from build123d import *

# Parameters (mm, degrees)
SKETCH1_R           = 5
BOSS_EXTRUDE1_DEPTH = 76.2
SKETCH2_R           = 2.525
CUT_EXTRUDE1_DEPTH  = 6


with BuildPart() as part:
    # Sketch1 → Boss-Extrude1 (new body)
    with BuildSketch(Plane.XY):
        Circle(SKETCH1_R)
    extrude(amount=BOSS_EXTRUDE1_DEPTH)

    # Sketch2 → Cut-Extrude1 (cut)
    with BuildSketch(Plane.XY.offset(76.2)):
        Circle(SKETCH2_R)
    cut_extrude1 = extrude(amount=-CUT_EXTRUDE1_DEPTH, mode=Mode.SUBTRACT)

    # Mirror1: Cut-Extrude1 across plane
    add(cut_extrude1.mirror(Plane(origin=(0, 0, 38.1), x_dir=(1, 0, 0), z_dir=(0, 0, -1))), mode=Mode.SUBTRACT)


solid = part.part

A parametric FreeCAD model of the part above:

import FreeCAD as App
import Part
import Sketcher

doc = App.newDocument("Part")
body = doc.addObject("PartDesign::Body", "Body")

sketch1 = body.newObject("Sketcher::SketchObject", "Sketch")
sketch1.AttachmentSupport = (doc.getObject("XY_Plane"), [""])
sketch1.MapMode = "FlatFace"
sketch1.addGeometry(Part.Circle(App.Vector(0, 0, 0), App.Vector(0, 0, 1), 5), False)
sketch1.addConstraint([
    Sketcher.Constraint("Coincident", 0, 3, -1, 1),
    Sketcher.Constraint("Diameter", 0, 10.0),
])
pad1 = body.newObject("PartDesign::Pad", "Pad")
pad1.Profile = sketch1
pad1.Length = 76.2

sketch2 = body.newObject("Sketcher::SketchObject", "Sketch001")
sketch2.AttachmentSupport = (doc.getObject("XY_Plane"), [""])
sketch2.MapMode = "FlatFace"
sketch2.AttachmentOffset = App.Placement(App.Vector(0, 0, 76.2), App.Rotation())
sketch2.addGeometry(Part.Circle(App.Vector(0, 0, 0), App.Vector(0, 0, 1), 2.5), False)
sketch2.addConstraint([
    Sketcher.Constraint("Coincident", 0, 3, -1, 1),
    Sketcher.Constraint("Diameter", 0, 5.05),
])
pocket1 = body.newObject("PartDesign::Pocket", "Pocket")
pocket1.Profile = sketch2
pocket1.Length = 6
doc.recompute()

datumplane = body.newObject("PartDesign::Plane", "DatumPlane")
datumplane.AttachmentSupport = (doc.getObject("XY_Plane"), [""])
datumplane.MapMode = "FlatFace"
datumplane.AttachmentOffset = App.Placement(App.Vector(0, 0, 38.1), App.Rotation())
mirrored = body.newObject("PartDesign::Mirrored", "Mirrored")
mirrored.Originals = [pocket1]
mirrored.MirrorPlane = (datumplane, [""])
body.Tip = mirrored

doc.recompute()
